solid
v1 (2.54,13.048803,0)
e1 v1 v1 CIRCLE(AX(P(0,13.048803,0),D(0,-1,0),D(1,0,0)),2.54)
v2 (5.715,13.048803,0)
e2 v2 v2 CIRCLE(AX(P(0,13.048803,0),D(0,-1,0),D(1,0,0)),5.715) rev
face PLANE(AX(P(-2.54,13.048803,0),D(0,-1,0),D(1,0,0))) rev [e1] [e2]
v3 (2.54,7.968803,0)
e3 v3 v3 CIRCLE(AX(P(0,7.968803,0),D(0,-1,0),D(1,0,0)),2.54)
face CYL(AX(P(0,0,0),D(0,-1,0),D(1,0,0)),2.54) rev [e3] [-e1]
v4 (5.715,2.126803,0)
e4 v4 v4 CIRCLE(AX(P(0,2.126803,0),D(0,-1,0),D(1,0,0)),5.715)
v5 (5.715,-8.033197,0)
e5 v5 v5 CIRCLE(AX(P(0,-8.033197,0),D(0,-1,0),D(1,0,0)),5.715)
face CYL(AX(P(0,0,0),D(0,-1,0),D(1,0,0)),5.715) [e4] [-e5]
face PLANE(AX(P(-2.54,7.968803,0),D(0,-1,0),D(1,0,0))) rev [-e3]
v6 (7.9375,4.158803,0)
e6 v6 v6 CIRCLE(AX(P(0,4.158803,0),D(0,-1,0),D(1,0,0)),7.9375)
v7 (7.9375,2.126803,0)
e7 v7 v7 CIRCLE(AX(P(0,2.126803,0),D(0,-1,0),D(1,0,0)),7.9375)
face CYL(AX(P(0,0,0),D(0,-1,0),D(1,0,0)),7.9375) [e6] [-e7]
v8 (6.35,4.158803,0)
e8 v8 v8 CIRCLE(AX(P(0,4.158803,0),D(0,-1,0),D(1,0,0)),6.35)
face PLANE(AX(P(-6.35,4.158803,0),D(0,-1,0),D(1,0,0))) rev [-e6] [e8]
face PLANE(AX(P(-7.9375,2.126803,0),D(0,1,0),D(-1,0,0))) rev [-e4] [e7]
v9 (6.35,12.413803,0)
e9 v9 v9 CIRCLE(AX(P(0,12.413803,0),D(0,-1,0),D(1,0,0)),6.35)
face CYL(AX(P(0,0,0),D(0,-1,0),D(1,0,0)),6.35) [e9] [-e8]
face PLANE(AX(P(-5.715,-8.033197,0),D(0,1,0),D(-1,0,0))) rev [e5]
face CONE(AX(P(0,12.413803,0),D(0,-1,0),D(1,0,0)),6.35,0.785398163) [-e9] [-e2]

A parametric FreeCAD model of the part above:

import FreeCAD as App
import Part
import Sketcher
from FreeCAD import Vector
Q = App.Units.Quantity


def edges_at(feature, points):
    """Names of the edges that pass closest to the given points."""
    edges = feature.Shape.Edges
    near = lambda p: min(range(len(edges)), key=lambda i: edges[i].distToShape(Part.Vertex(*p))[0])
    return sorted({f"Edge{near(p) + 1}" for p in points})

doc = App.newDocument("Part")
body = doc.addObject("PartDesign::Body", "Body")

# Sketch on XY plane
sketch1 = body.newObject("Sketcher::SketchObject", "Sketch")
sketch1.AttachmentSupport = (doc.getObject("XY_Plane"), [""])
sketch1.MapMode = "FlatFace"
sketch1.addGeometry([
    Part.LineSegment(Vector(-2.5, 13, 0), Vector(-6.3, 13, 0)),  # 0
    Part.LineSegment(Vector(-6.3, 13, 0), Vector(-6.3, 4.2, 0)),  # 1
    Part.LineSegment(Vector(-6.3, 4.2, 0), Vector(-7.9, 4.2, 0)),  # 2
    Part.LineSegment(Vector(-7.9, 4.2, 0), Vector(-7.9, 2.1, 0)),  # 3
    Part.LineSegment(Vector(-7.9, 2.1, 0), Vector(-5.7, 2.1, 0)),  # 4
    Part.LineSegment(Vector(-5.7, 2.1, 0), Vector(-5.7, -8, 0)),  # 5
    Part.LineSegment(Vector(-5.7, -8, 0), Vector(0, -8, 0)),  # 6
    Part.LineSegment(Vector(0, -8, 0), Vector(0, 8, 0)),  # 7
    Part.LineSegment(Vector(0, 8, 0), Vector(-2.5, 8, 0)),  # 8
    Part.LineSegment(Vector(-2.5, 8, 0), Vector(-2.5, 13, 0)),  # 9
], False)
sketch1.addConstraint([
    Sketcher.Constraint("Coincident", 0, 2, 1, 1),
    Sketcher.Constraint("Coincident", 1, 2, 2, 1),
    Sketcher.Constraint("Coincident", 2, 2, 3, 1),
    Sketcher.Constraint("Coincident", 3, 2, 4, 1),
    Sketcher.Constraint("Coincident", 4, 2, 5, 1),
    Sketcher.Constraint("Coincident", 5, 2, 6, 1),
    Sketcher.Constraint("Coincident", 6, 2, 7, 1),
    Sketcher.Constraint("Coincident", 7, 2, 8, 1),
    Sketcher.Constraint("Coincident", 8, 2, 9, 1),
    Sketcher.Constraint("Coincident", 9, 2, 0, 1),
    Sketcher.Constraint("Horizontal", 0),
    Sketcher.Constraint("Vertical", 1),
    Sketcher.Constraint("Horizontal", 2),
    Sketcher.Constraint("Vertical", 3),
    Sketcher.Constraint("Horizontal", 4),
    Sketcher.Constraint("Vertical", 5),
    Sketcher.Constraint("Horizontal", 6),
    Sketcher.Constraint("Vertical", 7),
    Sketcher.Constraint("Horizontal", 8),
    Sketcher.Constraint("Vertical", 9),
    Sketcher.Constraint("PointOnObject", 6, 2, -2),
    Sketcher.Constraint("DistanceX", 8, 2, 8, 1, Q("0.1 in")),
    Sketcher.Constraint("DistanceY", 5, 2, 5, 1, Q("0.4 in")),
    Sketcher.Constraint("DistanceY", 9, 1, 9, 2, Q("0.2 in")),
    Sketcher.Constraint("DistanceX", 0, 2, 0, 1, Q("0.15 in")),
    Sketcher.Constraint("DistanceY", 1, 2, 1, 1, Q("0.35 in")),
    Sketcher.Constraint("DistanceY", 3, 2, 3, 1, Q("0.08 in")),
    Sketcher.Constraint("DistanceX", 2, 2, 2, 1, Q("0.0625 in")),
    Sketcher.Constraint("DistanceX", 6, 1, 6, 2, Q("0.225 in")),
    Sketcher.Constraint("DistanceY", -1, 1, 0, 2, 13.048803),
])
revolution = body.newObject("PartDesign::Revolution", "Revolution")
revolution.Profile = sketch1
revolution.ReferenceAxis = (sketch1, ["V_Axis"])
revolution.Angle = 360
doc.recompute()

chamfer = body.newObject("PartDesign::Chamfer", "Chamfer")
chamfer.Base = (revolution, edges_at(revolution, [(-6.35, 13.049, 0)]))
chamfer.Size = Q("0.025 in")

doc.recompute()
